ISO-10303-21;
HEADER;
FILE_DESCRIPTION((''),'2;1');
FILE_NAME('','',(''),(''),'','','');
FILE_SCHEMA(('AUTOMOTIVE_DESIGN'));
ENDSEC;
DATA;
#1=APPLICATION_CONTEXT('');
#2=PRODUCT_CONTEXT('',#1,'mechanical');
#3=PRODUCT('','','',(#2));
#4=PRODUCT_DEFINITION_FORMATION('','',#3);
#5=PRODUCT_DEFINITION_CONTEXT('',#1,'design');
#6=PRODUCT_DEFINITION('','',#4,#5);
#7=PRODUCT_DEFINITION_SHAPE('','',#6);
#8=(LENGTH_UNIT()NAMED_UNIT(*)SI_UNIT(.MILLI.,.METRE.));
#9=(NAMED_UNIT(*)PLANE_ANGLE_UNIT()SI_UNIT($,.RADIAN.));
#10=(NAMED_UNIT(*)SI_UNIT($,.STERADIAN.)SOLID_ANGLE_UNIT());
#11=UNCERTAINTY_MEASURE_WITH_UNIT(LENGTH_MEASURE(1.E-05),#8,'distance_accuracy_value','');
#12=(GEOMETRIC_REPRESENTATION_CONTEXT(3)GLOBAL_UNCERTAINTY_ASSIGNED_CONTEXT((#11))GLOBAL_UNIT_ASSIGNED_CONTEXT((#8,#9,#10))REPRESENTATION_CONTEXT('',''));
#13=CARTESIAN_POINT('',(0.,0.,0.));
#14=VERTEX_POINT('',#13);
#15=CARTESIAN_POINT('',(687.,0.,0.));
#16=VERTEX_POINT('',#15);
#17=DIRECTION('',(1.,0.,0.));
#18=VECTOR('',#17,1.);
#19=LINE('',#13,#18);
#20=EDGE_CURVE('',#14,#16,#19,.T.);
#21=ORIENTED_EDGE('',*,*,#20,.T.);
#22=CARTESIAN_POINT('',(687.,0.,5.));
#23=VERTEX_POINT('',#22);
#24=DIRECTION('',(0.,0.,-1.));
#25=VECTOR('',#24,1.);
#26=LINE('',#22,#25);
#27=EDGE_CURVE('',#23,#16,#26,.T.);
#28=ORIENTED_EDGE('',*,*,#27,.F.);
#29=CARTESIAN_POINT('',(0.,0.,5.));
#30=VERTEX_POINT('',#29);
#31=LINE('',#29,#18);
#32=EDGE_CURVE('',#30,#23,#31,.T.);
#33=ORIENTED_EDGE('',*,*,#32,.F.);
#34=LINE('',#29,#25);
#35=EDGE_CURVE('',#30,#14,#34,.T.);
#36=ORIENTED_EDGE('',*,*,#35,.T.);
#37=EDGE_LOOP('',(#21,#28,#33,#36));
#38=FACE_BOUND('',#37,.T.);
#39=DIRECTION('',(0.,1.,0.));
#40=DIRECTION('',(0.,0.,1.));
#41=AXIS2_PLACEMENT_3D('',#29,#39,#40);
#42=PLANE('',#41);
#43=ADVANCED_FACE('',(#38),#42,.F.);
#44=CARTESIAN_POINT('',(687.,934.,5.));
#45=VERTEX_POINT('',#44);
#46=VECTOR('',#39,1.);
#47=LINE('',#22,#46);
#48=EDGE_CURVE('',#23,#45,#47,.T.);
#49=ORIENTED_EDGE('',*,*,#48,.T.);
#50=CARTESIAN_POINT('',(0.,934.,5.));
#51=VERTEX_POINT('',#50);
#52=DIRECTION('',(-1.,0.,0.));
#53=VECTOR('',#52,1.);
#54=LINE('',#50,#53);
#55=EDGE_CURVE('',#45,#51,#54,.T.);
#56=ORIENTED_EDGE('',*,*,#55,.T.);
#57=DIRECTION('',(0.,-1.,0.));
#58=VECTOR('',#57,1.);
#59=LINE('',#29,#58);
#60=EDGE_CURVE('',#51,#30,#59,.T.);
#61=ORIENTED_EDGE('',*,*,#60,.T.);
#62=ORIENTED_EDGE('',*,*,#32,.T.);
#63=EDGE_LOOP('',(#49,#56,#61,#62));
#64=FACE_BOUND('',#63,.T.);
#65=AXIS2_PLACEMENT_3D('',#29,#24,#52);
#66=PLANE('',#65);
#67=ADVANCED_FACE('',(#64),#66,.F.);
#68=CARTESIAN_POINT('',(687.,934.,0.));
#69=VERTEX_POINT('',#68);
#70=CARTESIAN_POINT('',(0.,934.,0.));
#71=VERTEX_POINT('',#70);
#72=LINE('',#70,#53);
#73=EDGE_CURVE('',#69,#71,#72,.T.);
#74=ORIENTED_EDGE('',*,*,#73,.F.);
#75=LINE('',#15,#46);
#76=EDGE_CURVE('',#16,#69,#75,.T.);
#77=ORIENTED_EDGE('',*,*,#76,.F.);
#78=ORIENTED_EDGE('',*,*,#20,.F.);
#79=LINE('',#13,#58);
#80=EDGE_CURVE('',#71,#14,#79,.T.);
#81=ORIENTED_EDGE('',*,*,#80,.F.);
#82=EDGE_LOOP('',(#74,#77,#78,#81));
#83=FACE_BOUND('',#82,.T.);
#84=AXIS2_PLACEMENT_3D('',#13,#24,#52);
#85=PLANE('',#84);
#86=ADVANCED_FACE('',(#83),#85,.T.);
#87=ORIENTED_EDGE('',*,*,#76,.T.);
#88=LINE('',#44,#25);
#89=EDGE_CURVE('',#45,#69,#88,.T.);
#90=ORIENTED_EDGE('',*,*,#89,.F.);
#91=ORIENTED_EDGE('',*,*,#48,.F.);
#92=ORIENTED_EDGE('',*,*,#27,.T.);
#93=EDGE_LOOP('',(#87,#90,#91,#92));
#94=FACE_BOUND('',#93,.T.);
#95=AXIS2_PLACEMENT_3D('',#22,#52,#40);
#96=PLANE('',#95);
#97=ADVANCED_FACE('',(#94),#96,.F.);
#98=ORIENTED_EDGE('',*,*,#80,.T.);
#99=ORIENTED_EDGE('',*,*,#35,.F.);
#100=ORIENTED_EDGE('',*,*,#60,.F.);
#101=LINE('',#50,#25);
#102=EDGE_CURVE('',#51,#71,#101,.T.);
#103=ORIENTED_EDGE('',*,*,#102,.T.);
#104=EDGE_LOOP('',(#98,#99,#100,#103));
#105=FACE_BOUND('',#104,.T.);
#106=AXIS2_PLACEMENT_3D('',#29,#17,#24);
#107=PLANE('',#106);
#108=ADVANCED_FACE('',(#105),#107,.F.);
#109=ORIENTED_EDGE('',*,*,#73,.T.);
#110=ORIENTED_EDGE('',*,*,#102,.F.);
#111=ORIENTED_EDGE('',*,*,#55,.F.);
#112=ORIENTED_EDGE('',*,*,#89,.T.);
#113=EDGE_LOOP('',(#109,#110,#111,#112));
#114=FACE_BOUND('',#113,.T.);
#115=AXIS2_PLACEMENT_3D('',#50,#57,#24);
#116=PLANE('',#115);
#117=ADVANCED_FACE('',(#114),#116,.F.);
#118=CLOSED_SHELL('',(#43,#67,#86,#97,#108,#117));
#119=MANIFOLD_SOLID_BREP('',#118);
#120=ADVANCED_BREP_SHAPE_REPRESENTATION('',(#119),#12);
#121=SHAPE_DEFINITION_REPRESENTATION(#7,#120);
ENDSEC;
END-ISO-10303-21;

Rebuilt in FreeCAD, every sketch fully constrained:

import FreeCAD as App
import Part
import Sketcher


def add_polygon(sketch, points):
    """Adds a closed chain of lines whose ends are joined by coincident constraints."""
    first, n = sketch.GeometryCount, len(points)
    for a, b in zip(points, points[1:] + points[:1]):
        sketch.addGeometry(Part.LineSegment(App.Vector(*a, 0), App.Vector(*b, 0)), False)
    for i in range(n):
        sketch.addConstraint(Sketcher.Constraint("Coincident", first + i, 2, first + (i + 1) % n, 1))

doc = App.newDocument("Part")
body = doc.addObject("PartDesign::Body", "Body")

# Sketch on XY plane
sketch1 = body.newObject("Sketcher::SketchObject", "Sketch")
sketch1.AttachmentSupport = (doc.getObject("XY_Plane"), [""])
sketch1.MapMode = "FlatFace"
add_polygon(sketch1, [(0, 934), (0, 0), (687, 0), (687, 934)])  # lines 0-3
sketch1.addConstraint([
    Sketcher.Constraint("Vertical", 0),
    Sketcher.Constraint("Horizontal", 1),
    Sketcher.Constraint("Vertical", 2),
    Sketcher.Constraint("Horizontal", 3),
    Sketcher.Constraint("Coincident", 0, 2, -1, 1),
    Sketcher.Constraint("DistanceX", 1, 1, 1, 2, 687.0),
    Sketcher.Constraint("DistanceY", 0, 2, 0, 1, 934.0),
])
pad1 = body.newObject("PartDesign::Pad", "Pad")
pad1.Profile = sketch1
pad1.Length = 5

doc.recompute()
